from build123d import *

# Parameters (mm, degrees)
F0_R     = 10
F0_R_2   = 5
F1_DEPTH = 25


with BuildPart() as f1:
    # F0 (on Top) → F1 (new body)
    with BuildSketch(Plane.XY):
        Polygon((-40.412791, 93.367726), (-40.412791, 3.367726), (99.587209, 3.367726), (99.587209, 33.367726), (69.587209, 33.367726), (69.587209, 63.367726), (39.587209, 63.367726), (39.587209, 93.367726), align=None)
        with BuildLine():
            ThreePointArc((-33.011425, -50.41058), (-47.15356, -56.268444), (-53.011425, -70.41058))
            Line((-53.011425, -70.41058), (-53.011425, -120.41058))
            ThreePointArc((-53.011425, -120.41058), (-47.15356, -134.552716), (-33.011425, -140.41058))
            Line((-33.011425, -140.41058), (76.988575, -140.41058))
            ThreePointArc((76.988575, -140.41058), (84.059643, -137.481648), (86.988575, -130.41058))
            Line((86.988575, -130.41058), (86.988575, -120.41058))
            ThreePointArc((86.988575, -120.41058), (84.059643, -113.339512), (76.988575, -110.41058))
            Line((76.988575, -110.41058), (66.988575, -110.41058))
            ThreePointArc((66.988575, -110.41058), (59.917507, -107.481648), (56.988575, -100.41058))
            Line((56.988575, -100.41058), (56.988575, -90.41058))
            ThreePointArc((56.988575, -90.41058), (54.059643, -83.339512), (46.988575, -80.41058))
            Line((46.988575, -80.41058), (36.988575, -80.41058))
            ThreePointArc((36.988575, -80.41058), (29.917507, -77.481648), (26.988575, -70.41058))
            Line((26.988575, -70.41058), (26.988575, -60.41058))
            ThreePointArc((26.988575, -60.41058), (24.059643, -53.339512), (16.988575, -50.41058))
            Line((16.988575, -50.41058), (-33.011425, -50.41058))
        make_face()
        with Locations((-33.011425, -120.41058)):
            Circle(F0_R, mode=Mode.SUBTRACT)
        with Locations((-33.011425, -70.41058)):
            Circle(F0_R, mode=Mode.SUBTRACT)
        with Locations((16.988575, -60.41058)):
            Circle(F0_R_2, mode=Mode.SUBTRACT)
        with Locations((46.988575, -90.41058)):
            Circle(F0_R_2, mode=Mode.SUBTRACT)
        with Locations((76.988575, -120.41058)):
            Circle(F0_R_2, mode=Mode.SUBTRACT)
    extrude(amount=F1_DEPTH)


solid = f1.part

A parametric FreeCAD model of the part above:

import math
import FreeCAD as App
import Part
import Sketcher
from FreeCAD import Vector
Q = App.Units.Quantity

doc = App.newDocument("Part")
params = doc.addObject("Spreadsheet::Sheet", "Params")
for row, (alias, value) in enumerate([
    ("sketch1_diameter", "20 mm"),
    ("sketch1_diameter2", "10 mm"),
    ("sketch1_radius", "20 mm"),
    ("sketch1_width", "140 mm"),
    ("sketch1_width2", "30 mm"),
    ("pad1_length", "25 mm"),
], start=1):
    params.set(f"A{row}", alias)
    params.set(f"B{row}", "=" + value)
    params.setAlias(f"B{row}", alias)

body = doc.addObject("PartDesign::Body", "Body")
body.AllowCompound = True

# Sketch on XY plane
sketch1 = doc.addObject("Sketcher::SketchObject", "Sketch")
body.addObject(sketch1)
sketch1.AttachmentSupport = (doc.XY_Plane, [""])
sketch1.MapMode = "FlatFace"
sketch1.addGeometry(Part.LineSegment(Vector(-40.412791, 93.367726, 0), Vector(-40.412791, 3.367726, 0)), False)
sketch1.addGeometry(Part.LineSegment(Vector(-40.412791, 3.367726, 0), Vector(99.587209, 3.367726, 0)), False)
sketch1.addGeometry(Part.LineSegment(Vector(99.587209, 3.367726, 0), Vector(99.587209, 33.367726, 0)), False)
sketch1.addGeometry(Part.LineSegment(Vector(99.587209, 33.367726, 0), Vector(69.587209, 33.367726, 0)), False)
sketch1.addGeometry(Part.LineSegment(Vector(69.587209, 33.367726, 0), Vector(69.587209, 63.367726, 0)), False)
sketch1.addGeometry(Part.LineSegment(Vector(69.587209, 63.367726, 0), Vector(39.587209, 63.367726, 0)), False)
sketch1.addGeometry(Part.LineSegment(Vector(39.587209, 63.367726, 0), Vector(39.587209, 93.367726, 0)), False)
sketch1.addGeometry(Part.LineSegment(Vector(39.587209, 93.367726, 0), Vector(-40.412791, 93.367726, 0)), False)
sketch1.addGeometry(Part.ArcOfCircle(Part.Circle(Vector(-33.011425, -70.41058, 0), Vector(0, 0, 1), 20), math.radians(90.000001), math.radians(179.999999)), False)
sketch1.addGeometry(Part.LineSegment(Vector(-53.011425, -70.41058, 0), Vector(-53.011425, -120.41058, 0)), False)
sketch1.addGeometry(Part.ArcOfCircle(Part.Circle(Vector(-33.011425, -120.41058, 0), Vector(0, 0, 1), 20), math.radians(-179.999999), math.radians(-90.000001)), False)
sketch1.addGeometry(Part.LineSegment(Vector(-33.011425, -140.41058, 0), Vector(76.988575, -140.41058, 0)), False)
sketch1.addGeometry(Part.ArcOfCircle(Part.Circle(Vector(76.988576, -130.410581, 0), Vector(0, 0, 1), 9.999999), math.radians(-90.000004), math.radians(0.000004)), False)
sketch1.addGeometry(Part.LineSegment(Vector(86.988575, -130.41058, 0), Vector(86.988575, -120.41058, 0)), False)
sketch1.addGeometry(Part.ArcOfCircle(Part.Circle(Vector(76.988576, -120.410579, 0), Vector(0, 0, 1), 9.999999), math.radians(-0.000004), math.radians(90.000004)), False)
sketch1.addGeometry(Part.LineSegment(Vector(76.988575, -110.41058, 0), Vector(66.988575, -110.41058, 0)), False)
sketch1.addGeometry(Part.ArcOfCircle(Part.Circle(Vector(66.988574, -100.410581, 0), Vector(0, 0, 1), 9.999999), math.radians(179.999996), math.radians(270.000004)), False)
sketch1.addGeometry(Part.LineSegment(Vector(56.988575, -100.41058, 0), Vector(56.988575, -90.41058, 0)), False)
sketch1.addGeometry(Part.ArcOfCircle(Part.Circle(Vector(46.988576, -90.410579, 0), Vector(0, 0, 1), 9.999999), math.radians(-0.000004), math.radians(90.000004)), False)
sketch1.addGeometry(Part.LineSegment(Vector(46.988575, -80.41058, 0), Vector(36.988575, -80.41058, 0)), False)
sketch1.addGeometry(Part.ArcOfCircle(Part.Circle(Vector(36.988574, -70.410581, 0), Vector(0, 0, 1), 9.999999), math.radians(179.999996), math.radians(270.000004)), False)
sketch1.addGeometry(Part.LineSegment(Vector(26.988575, -70.41058, 0), Vector(26.988575, -60.41058, 0)), False)
sketch1.addGeometry(Part.ArcOfCircle(Part.Circle(Vector(16.988576, -60.410579, 0), Vector(0, 0, 1), 9.999999), math.radians(-0.000004), math.radians(90.000004)), False)
sketch1.addGeometry(Part.LineSegment(Vector(16.988575, -50.41058, 0), Vector(-33.011425, -50.41058, 0)), False)
sketch1.addGeometry(Part.Circle(Vector(-33.011425, -120.41058, 0), Vector(0, 0, 1), 10), False)
sketch1.addGeometry(Part.Circle(Vector(76.988575, -120.41058, 0), Vector(0, 0, 1), 5), False)
sketch1.addGeometry(Part.Circle(Vector(-33.011425, -70.41058, 0), Vector(0, 0, 1), 10), False)
sketch1.addGeometry(Part.Circle(Vector(16.988575, -60.41058, 0), Vector(0, 0, 1), 5), False)
sketch1.addGeometry(Part.Circle(Vector(46.988575, -90.41058, 0), Vector(0, 0, 1), 5), False)
sketch1.addConstraint(Sketcher.Constraint("Coincident", 0, 2, 1, 1))
sketch1.addConstraint(Sketcher.Constraint("Coincident", 1, 2, 2, 1))
sketch1.addConstraint(Sketcher.Constraint("Coincident", 2, 2, 3, 1))
sketch1.addConstraint(Sketcher.Constraint("Coincident", 3, 2, 4, 1))
sketch1.addConstraint(Sketcher.Constraint("Coincident", 4, 2, 5, 1))
sketch1.addConstraint(Sketcher.Constraint("Coincident", 5, 2, 6, 1))
sketch1.addConstraint(Sketcher.Constraint("Coincident", 6, 2, 7, 1))
sketch1.addConstraint(Sketcher.Constraint("Coincident", 7, 2, 0, 1))
sketch1.addConstraint(Sketcher.Constraint("Tangent", 8, 2, 9, 1))
sketch1.addConstraint(Sketcher.Constraint("Tangent", 9, 2, 10, 1))
sketch1.addConstraint(Sketcher.Constraint("Tangent", 10, 2, 11, 1))
sketch1.addConstraint(Sketcher.Constraint("Tangent", 11, 2, 12, 1))
sketch1.addConstraint(Sketcher.Constraint("Tangent", 12, 2, 13, 1))
sketch1.addConstraint(Sketcher.Constraint("Tangent", 13, 2, 14, 1))
sketch1.addConstraint(Sketcher.Constraint("Tangent", 14, 2, 15, 1))
sketch1.addConstraint(Sketcher.Constraint("Tangent", 15, 2, 16, 2))
sketch1.addConstraint(Sketcher.Constraint("Tangent", 16, 1, 17, 1))
sketch1.addConstraint(Sketcher.Constraint("Tangent", 17, 2, 18, 1))
sketch1.addConstraint(Sketcher.Constraint("Tangent", 18, 2, 19, 1))
sketch1.addConstraint(Sketcher.Constraint("Tangent", 19, 2, 20, 2))
sketch1.addConstraint(Sketcher.Constraint("Tangent", 20, 1, 21, 1))
sketch1.addConstraint(Sketcher.Constraint("Tangent", 21, 2, 22, 1))
sketch1.addConstraint(Sketcher.Constraint("Tangent", 22, 2, 23, 1))
sketch1.addConstraint(Sketcher.Constraint("Tangent", 23, 2, 8, 1))
sketch1.addConstraint(Sketcher.Constraint("Vertical", 0))
sketch1.addConstraint(Sketcher.Constraint("Horizontal", 1))
sketch1.addConstraint(Sketcher.Constraint("Vertical", 2))
sketch1.addConstraint(Sketcher.Constraint("Horizontal", 3))
sketch1.addConstraint(Sketcher.Constraint("Vertical", 4))
sketch1.addConstraint(Sketcher.Constraint("Horizontal", 5))
sketch1.addConstraint(Sketcher.Constraint("Vertical", 6))
sketch1.addConstraint(Sketcher.Constraint("Horizontal", 7))
sketch1.addConstraint(Sketcher.Constraint("Vertical", 9))
sketch1.addConstraint(Sketcher.Constraint("Horizontal", 11))
sketch1.addConstraint(Sketcher.Constraint("Vertical", 13))
sketch1.addConstraint(Sketcher.Constraint("Horizontal", 15))
sketch1.addConstraint(Sketcher.Constraint("Vertical", 17))
sketch1.addConstraint(Sketcher.Constraint("Horizontal", 19))
sketch1.addConstraint(Sketcher.Constraint("Vertical", 21))
sketch1.addConstraint(Sketcher.Constraint("Horizontal", 23))
sketch1.addConstraint(Sketcher.Constraint("Coincident", 24, 3, 10, 3))
sketch1.addConstraint(Sketcher.Constraint("Coincident", 25, 3, 14, 3))
sketch1.addConstraint(Sketcher.Constraint("Coincident", 26, 3, 8, 3))
sketch1.addConstraint(Sketcher.Constraint("Coincident", 27, 3, 22, 3))
sketch1.addConstraint(Sketcher.Constraint("Coincident", 28, 3, 18, 3))
sketch1.addConstraint(Sketcher.Constraint("Equal", 8, 10))
sketch1.addConstraint(Sketcher.Constraint("Equal", 12, 14))
sketch1.addConstraint(Sketcher.Constraint("Equal", 14, 16))
sketch1.addConstraint(Sketcher.Constraint("Equal", 16, 18))
sketch1.addConstraint(Sketcher.Constraint("Equal", 18, 20))
sketch1.addConstraint(Sketcher.Constraint("Equal", 20, 22))
sketch1.addConstraint(Sketcher.Constraint("Equal", 22, 24))
sketch1.addConstraint(Sketcher.Constraint("Equal", 24, 26))
sketch1.addConstraint(Sketcher.Constraint("Equal", 25, 27))
sketch1.addConstraint(Sketcher.Constraint("Equal", 27, 28))
sketch1.addConstraint(Sketcher.Constraint("Horizontal", 10, 3, 14, 3))
sketch1.addConstraint(Sketcher.Constraint("Horizontal", 8, 3, 20, 3))
sketch1.addConstraint(Sketcher.Constraint("Equal", 3, 5))
sketch1.addConstraint(Sketcher.Constraint("Equal", 15, 19))
sketch1.addConstraint(Sketcher.Constraint("Equal", 5, 2))
sketch1.addConstraint(Sketcher.Constraint("Equal", 2, 4))
sketch1.addConstraint(Sketcher.Constraint("Equal", 4, 6))
sketch1.addConstraint(Sketcher.Constraint("Equal", 23, 9))
sketch1.addConstraint(Sketcher.Constraint("Equal", 19, 13))
sketch1.addConstraint(Sketcher.Constraint("Equal", 13, 17))
sketch1.addConstraint(Sketcher.Constraint("Diameter", 24, Q("20 mm")))
sketch1.addConstraint(Sketcher.Constraint("Diameter", 25, Q("10 mm")))
sketch1.addConstraint(Sketcher.Constraint("Radius", 8, Q("20 mm")))
sketch1.addConstraint(Sketcher.Constraint("DistanceX", 1, 1, 1, 2, Q("140 mm")))
sketch1.addConstraint(Sketcher.Constraint("DistanceX", 3, 2, 3, 1, Q("30 mm")))
sketch1.addConstraint(Sketcher.Constraint("DistanceY", 8, 3, -1, 1, Q("70.41058 mm")))
sketch1.addConstraint(Sketcher.Constraint("DistanceX", 0, 2, -1, 1, Q("40.412791 mm")))
sketch1.addConstraint(Sketcher.Constraint("DistanceX", 8, 3, -1, 1, Q("33.011425 mm")))
sketch1.addConstraint(Sketcher.Constraint("DistanceY", -1, 1, 0, 2, Q("3.367726 mm")))
sketch1.setExpression("Constraints[65]", "Params.sketch1_diameter")
sketch1.setExpression("Constraints[66]", "Params.sketch1_diameter2")
sketch1.setExpression("Constraints[67]", "Params.sketch1_radius")
sketch1.setExpression("Constraints[68]", "Params.sketch1_width")
sketch1.setExpression("Constraints[69]", "Params.sketch1_width2")
pad1 = doc.addObject("PartDesign::Pad", "Pad")
body.addObject(pad1)
pad1.Profile = sketch1
pad1.setExpression("Length", "Params.pad1_length")

doc.recompute()
